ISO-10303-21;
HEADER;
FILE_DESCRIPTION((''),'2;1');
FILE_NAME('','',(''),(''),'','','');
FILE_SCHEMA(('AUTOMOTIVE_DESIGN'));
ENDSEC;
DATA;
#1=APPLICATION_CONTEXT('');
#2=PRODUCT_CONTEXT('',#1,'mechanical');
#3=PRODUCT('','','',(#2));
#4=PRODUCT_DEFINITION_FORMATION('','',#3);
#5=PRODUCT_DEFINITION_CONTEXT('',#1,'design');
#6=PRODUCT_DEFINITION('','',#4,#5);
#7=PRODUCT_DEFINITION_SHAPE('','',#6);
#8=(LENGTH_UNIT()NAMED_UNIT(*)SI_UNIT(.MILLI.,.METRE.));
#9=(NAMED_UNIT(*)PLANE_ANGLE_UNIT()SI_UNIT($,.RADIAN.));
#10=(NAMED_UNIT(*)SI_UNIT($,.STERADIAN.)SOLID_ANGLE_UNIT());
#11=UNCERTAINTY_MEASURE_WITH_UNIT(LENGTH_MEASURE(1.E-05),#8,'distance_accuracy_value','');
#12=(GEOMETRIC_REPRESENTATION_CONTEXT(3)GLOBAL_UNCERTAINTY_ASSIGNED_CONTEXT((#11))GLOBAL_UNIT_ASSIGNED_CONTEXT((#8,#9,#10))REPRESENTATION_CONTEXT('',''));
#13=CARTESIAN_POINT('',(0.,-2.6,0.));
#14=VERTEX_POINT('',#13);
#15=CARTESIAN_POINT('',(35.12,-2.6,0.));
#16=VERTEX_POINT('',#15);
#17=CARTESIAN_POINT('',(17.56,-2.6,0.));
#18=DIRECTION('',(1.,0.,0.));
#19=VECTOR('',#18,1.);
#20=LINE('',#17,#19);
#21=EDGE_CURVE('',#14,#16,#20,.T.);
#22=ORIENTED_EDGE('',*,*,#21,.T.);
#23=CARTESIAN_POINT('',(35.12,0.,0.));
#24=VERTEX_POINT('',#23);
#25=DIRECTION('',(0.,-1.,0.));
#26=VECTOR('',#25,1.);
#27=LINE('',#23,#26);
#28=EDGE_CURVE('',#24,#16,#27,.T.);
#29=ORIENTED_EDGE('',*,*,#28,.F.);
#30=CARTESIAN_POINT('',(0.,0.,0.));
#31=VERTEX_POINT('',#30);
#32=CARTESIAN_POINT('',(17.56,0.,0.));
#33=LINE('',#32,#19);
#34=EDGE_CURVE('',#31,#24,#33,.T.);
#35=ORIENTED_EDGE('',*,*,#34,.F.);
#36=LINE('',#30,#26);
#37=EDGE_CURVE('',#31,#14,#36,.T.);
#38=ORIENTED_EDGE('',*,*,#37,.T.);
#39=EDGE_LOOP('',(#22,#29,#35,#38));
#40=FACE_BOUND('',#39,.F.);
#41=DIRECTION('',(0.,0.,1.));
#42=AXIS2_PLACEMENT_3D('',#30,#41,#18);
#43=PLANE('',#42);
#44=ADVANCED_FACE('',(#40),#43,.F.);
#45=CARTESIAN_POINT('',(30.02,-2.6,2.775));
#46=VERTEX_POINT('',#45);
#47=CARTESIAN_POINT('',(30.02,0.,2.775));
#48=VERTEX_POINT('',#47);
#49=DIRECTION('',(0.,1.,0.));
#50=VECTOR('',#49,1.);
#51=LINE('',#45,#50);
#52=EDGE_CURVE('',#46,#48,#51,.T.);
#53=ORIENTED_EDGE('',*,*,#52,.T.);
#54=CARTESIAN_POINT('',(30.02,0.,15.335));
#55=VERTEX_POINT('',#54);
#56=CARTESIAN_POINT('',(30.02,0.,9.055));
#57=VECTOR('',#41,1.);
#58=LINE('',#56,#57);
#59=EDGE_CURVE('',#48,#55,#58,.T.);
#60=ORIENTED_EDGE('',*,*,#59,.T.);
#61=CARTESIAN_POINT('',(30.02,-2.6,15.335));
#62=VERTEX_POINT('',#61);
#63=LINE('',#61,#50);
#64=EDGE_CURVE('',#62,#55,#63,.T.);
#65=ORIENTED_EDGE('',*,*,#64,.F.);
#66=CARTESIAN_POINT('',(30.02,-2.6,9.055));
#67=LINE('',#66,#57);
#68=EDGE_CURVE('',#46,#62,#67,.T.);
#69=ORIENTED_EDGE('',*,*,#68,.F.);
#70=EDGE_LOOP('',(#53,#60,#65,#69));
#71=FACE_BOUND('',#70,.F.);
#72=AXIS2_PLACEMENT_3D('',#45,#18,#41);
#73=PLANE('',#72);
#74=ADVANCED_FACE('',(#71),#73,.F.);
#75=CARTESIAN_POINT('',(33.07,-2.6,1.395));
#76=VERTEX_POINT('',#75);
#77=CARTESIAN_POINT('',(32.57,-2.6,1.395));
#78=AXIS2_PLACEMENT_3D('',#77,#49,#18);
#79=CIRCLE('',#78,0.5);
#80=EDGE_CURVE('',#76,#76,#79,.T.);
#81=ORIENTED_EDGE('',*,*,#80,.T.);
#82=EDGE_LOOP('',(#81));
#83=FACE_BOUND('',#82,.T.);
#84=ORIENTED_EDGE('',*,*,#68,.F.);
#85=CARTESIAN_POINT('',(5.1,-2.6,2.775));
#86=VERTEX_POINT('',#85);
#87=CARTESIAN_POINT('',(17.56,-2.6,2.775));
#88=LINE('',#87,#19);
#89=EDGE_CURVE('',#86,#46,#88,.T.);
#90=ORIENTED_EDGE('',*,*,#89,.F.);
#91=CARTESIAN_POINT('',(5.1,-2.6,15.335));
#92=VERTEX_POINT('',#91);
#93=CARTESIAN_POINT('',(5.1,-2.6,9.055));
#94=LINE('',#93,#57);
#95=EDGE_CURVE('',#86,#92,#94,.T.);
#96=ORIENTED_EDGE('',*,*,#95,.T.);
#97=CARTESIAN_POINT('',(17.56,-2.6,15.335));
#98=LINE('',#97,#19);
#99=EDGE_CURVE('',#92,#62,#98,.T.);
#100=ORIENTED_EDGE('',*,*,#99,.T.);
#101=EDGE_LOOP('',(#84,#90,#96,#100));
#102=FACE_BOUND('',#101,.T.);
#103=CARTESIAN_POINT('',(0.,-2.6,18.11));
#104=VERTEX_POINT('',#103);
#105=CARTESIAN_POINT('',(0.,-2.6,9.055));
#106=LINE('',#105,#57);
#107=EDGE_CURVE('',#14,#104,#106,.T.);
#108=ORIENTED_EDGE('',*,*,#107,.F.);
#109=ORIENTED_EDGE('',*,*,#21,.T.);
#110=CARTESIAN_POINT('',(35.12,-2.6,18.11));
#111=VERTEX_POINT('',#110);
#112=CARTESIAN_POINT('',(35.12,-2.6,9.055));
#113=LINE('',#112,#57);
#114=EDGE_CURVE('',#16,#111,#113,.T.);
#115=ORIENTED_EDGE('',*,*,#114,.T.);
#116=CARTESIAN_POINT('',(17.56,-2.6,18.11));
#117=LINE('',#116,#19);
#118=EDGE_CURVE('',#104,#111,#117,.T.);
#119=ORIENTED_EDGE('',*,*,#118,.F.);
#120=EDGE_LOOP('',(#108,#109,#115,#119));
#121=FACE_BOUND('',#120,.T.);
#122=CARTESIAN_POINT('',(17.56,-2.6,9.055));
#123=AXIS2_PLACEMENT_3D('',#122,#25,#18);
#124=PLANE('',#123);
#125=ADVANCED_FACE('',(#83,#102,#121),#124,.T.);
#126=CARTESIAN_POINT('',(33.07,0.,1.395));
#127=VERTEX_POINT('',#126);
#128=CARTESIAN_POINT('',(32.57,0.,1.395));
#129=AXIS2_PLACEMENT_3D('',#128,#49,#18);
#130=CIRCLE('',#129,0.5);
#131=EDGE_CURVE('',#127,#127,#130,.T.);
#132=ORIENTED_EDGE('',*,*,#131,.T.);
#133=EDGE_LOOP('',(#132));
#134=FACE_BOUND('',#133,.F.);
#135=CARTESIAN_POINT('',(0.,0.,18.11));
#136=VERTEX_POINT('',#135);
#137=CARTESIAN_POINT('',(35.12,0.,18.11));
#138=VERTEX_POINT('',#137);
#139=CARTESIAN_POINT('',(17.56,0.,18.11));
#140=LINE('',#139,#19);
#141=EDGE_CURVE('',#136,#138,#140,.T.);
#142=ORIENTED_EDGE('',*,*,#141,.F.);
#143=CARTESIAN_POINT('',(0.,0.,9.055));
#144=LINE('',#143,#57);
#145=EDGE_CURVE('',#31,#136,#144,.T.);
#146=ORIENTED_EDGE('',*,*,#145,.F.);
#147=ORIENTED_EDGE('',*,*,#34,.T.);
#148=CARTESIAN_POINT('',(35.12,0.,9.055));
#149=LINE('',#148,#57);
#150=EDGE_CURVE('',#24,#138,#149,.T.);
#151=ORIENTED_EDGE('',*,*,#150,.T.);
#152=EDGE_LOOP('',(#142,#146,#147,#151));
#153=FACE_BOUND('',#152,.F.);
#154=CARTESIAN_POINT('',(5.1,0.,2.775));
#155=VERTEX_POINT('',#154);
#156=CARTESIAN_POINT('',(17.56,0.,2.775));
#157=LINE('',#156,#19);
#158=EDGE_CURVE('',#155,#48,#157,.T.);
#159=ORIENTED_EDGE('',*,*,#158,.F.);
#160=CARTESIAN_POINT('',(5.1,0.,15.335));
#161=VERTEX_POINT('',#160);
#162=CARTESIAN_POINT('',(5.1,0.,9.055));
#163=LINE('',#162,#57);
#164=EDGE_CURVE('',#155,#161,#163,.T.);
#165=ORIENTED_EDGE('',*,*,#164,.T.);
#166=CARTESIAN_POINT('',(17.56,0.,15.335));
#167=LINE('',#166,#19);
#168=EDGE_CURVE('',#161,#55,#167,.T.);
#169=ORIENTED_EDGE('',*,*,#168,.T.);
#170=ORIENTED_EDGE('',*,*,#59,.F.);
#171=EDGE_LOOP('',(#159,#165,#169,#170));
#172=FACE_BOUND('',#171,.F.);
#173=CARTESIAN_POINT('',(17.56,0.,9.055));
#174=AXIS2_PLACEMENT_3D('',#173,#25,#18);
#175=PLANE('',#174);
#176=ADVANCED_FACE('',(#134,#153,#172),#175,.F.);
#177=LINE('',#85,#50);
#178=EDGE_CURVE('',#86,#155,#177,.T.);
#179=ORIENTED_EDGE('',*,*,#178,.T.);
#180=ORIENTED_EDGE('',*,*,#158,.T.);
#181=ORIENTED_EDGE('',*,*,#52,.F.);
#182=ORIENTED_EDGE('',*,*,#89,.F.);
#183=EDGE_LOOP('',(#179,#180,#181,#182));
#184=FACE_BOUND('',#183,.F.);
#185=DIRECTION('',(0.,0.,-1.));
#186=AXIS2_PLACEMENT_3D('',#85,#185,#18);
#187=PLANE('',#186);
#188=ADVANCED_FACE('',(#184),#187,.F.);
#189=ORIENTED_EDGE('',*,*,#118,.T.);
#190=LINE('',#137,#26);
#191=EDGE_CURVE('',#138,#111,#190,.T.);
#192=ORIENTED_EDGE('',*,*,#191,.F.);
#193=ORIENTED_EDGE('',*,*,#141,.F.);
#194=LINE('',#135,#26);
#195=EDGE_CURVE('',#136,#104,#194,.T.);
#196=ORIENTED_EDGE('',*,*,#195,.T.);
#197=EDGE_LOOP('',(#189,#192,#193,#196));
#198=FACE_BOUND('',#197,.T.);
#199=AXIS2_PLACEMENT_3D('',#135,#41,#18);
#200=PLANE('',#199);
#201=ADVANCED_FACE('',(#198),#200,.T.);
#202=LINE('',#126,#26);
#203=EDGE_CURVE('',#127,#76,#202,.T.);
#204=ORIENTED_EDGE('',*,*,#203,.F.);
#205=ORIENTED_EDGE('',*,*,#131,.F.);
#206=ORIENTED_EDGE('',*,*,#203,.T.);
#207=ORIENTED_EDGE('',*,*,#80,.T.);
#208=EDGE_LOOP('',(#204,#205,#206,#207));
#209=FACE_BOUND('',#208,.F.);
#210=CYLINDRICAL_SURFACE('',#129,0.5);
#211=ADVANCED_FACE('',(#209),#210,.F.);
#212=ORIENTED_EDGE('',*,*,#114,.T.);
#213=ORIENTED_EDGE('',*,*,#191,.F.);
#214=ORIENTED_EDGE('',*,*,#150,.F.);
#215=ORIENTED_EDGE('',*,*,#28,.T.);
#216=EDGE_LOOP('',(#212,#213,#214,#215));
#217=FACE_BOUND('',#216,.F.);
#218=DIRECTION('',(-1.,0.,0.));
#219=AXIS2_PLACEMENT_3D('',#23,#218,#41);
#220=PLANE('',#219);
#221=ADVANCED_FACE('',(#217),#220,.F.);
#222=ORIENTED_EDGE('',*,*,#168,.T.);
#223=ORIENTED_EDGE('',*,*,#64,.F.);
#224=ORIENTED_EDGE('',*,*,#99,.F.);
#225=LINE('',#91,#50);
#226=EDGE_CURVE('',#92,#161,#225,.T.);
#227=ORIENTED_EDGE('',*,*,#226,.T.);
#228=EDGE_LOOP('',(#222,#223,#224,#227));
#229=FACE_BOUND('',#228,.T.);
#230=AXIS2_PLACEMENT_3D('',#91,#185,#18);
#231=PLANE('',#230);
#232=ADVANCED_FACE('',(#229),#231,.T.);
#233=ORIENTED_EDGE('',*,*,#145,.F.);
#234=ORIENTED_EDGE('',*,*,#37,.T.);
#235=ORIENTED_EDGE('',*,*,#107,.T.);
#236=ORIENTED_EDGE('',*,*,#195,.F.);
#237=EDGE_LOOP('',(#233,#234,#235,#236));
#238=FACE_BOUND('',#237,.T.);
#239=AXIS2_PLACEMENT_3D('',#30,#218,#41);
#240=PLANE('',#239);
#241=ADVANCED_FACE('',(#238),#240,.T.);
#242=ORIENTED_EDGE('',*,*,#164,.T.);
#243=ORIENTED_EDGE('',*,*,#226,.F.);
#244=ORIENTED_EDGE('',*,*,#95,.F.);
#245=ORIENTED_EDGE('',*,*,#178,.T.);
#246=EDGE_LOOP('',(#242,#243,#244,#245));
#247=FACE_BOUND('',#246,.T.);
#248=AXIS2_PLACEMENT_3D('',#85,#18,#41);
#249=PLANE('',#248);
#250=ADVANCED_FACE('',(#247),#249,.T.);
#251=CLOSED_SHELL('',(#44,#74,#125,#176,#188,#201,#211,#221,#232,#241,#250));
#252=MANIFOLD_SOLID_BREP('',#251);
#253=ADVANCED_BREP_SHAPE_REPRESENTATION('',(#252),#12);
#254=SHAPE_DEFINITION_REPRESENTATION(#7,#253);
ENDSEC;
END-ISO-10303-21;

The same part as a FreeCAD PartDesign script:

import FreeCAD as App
import Part
import Sketcher

doc = App.newDocument("Part")
body = doc.addObject("PartDesign::Body", "Body")

sketch1 = body.newObject("Sketcher::SketchObject", "Sketch")
sketch1.AttachmentSupport = (doc.getObject("XZ_Plane"), [""])
sketch1.MapMode = "FlatFace"
sketch1.addGeometry(Part.LineSegment(App.Vector(0, 18, 0), App.Vector(0, 0, 0)), False)
sketch1.addGeometry(Part.LineSegment(App.Vector(0, 0, 0), App.Vector(35, 0, 0)), False)
sketch1.addGeometry(Part.LineSegment(App.Vector(35, 0, 0), App.Vector(35, 18, 0)), False)
sketch1.addGeometry(Part.LineSegment(App.Vector(35, 18, 0), App.Vector(0, 18, 0)), False)
sketch1.addConstraint(Sketcher.Constraint("Coincident", 0, 2, 1, 1))
sketch1.addConstraint(Sketcher.Constraint("Coincident", 1, 2, 2, 1))
sketch1.addConstraint(Sketcher.Constraint("Coincident", 2, 2, 3, 1))
sketch1.addConstraint(Sketcher.Constraint("Coincident", 3, 2, 0, 1))
sketch1.addConstraint(Sketcher.Constraint("Vertical", 0))
sketch1.addConstraint(Sketcher.Constraint("Horizontal", 1))
sketch1.addConstraint(Sketcher.Constraint("Vertical", 2))
sketch1.addConstraint(Sketcher.Constraint("Horizontal", 3))
sketch1.addConstraint(Sketcher.Constraint("Coincident", 0, 2, -1, 1))
sketch1.addConstraint(Sketcher.Constraint("DistanceX", 1, 1, 1, 2, 35.12))
sketch1.addConstraint(Sketcher.Constraint("DistanceY", 0, 2, 0, 1, 18.11))
pad1 = body.newObject("PartDesign::Pad", "Pad")
pad1.Profile = sketch1
pad1.Length = 2.6

sketch2 = body.newObject("Sketcher::SketchObject", "Sketch001")
sketch2.AttachmentSupport = (doc.getObject("XZ_Plane"), [""])
sketch2.MapMode = "FlatFace"
sketch2.AttachmentOffset = App.Placement(App.Vector(0, 0, 2.6), App.Rotation())
sketch2.addGeometry(Part.LineSegment(App.Vector(5, 15, 0), App.Vector(5, 3, 0)), False)
sketch2.addGeometry(Part.LineSegment(App.Vector(5, 3, 0), App.Vector(30, 3, 0)), False)
sketch2.addGeometry(Part.LineSegment(App.Vector(30, 3, 0), App.Vector(30, 15, 0)), False)
sketch2.addGeometry(Part.LineSegment(App.Vector(30, 15, 0), App.Vector(5, 15, 0)), False)
sketch2.addConstraint(Sketcher.Constraint("Coincident", 0, 2, 1, 1))
sketch2.addConstraint(Sketcher.Constraint("Coincident", 1, 2, 2, 1))
sketch2.addConstraint(Sketcher.Constraint("Coincident", 2, 2, 3, 1))
sketch2.addConstraint(Sketcher.Constraint("Coincident", 3, 2, 0, 1))
sketch2.addConstraint(Sketcher.Constraint("Vertical", 0))
sketch2.addConstraint(Sketcher.Constraint("Horizontal", 1))
sketch2.addConstraint(Sketcher.Constraint("Vertical", 2))
sketch2.addConstraint(Sketcher.Constraint("Horizontal", 3))
sketch2.addConstraint(Sketcher.Constraint("DistanceX", 1, 1, 1, 2, 24.92))
sketch2.addConstraint(Sketcher.Constraint("DistanceY", 0, 2, 0, 1, 12.56))
sketch2.addConstraint(Sketcher.Constraint("DistanceX", -1, 1, 0, 2, 5.1))
sketch2.addConstraint(Sketcher.Constraint("DistanceY", -1, 1, 0, 2, 2.775))
pocket1 = body.newObject("PartDesign::Pocket", "Pocket")
pocket1.Profile = sketch2
pocket1.Length = 2.6

sketch3 = body.newObject("Sketcher::SketchObject", "Sketch002")
sketch3.AttachmentSupport = (doc.getObject("XZ_Plane"), [""])
sketch3.MapMode = "FlatFace"
sketch3.addGeometry(Part.Circle(App.Vector(32.6, 1.4, 0), App.Vector(0, 0, 1), 0.5), False)
sketch3.addGeometry(Part.LineSegment(App.Vector(26.9, 6.8, 0), App.Vector(26.9, 10.3, 0)), False)
sketch3.addGeometry(Part.LineSegment(App.Vector(26.9, 10.3, 0), App.Vector(29, 10.3, 0)), False)
sketch3.addGeometry(Part.LineSegment(App.Vector(29, 10.3, 0), App.Vector(29, 6.8, 0)), False)
sketch3.addGeometry(Part.LineSegment(App.Vector(29, 6.8, 0), App.Vector(26.9, 6.8, 0)), False)
sketch3.addConstraint(Sketcher.Constraint("Coincident", 1, 2, 2, 1))
sketch3.addConstraint(Sketcher.Constraint("Coincident", 2, 2, 3, 1))
sketch3.addConstraint(Sketcher.Constraint("Coincident", 3, 2, 4, 1))
sketch3.addConstraint(Sketcher.Constraint("Coincident", 4, 2, 1, 1))
sketch3.addConstraint(Sketcher.Constraint("Vertical", 1))
sketch3.addConstraint(Sketcher.Constraint("Horizontal", 2))
sketch3.addConstraint(Sketcher.Constraint("Vertical", 3))
sketch3.addConstraint(Sketcher.Constraint("Horizontal", 4))
sketch3.addConstraint(Sketcher.Constraint("Diameter", 0, 1.0))
sketch3.addConstraint(Sketcher.Constraint("DistanceY", 1, 1, 1, 2, 3.5))
sketch3.addConstraint(Sketcher.Constraint("DistanceX", 2, 1, 2, 2, 2.01))
sketch3.addConstraint(Sketcher.Constraint("DistanceX", -1, 1, 0, 3, 32.57))
sketch3.addConstraint(Sketcher.Constraint("DistanceY", -1, 1, 0, 3, 1.395))
sketch3.addConstraint(Sketcher.Constraint("DistanceX", -1, 1, 1, 2, 26.948742))
sketch3.addConstraint(Sketcher.Constraint("DistanceY", -1, 1, 1, 2, 10.294061))
pocket2 = body.newObject("PartDesign::Pocket", "Pocket001")
pocket2.Profile = sketch3
pocket2.Length = 5
pocket2.Reversed = True

doc.recompute()
